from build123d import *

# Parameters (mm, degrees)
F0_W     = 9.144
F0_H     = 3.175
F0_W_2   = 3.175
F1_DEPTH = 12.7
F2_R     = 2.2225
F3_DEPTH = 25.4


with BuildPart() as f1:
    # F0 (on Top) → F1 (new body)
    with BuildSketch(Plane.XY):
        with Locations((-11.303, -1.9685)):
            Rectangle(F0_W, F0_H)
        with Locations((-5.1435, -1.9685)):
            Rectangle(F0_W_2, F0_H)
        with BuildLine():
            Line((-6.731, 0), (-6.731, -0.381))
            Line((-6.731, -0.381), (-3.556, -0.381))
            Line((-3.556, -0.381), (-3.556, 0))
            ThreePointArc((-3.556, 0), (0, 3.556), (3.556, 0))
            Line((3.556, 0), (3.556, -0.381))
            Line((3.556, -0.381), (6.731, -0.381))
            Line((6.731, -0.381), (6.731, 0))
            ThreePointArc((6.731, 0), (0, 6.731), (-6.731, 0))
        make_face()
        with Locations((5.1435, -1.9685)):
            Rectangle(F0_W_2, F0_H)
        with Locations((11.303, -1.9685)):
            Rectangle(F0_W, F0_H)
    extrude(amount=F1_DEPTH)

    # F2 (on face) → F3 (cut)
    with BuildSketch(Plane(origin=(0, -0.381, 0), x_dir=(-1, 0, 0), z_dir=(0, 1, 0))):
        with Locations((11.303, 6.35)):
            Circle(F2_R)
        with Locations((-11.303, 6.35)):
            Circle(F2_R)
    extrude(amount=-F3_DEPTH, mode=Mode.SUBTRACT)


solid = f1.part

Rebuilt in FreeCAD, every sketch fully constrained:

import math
import FreeCAD as App
import Part
import Sketcher
Q = App.Units.Quantity

doc = App.newDocument("Part")
body = doc.addObject("PartDesign::Body", "Body")

# Sketch on XY plane
sketch1 = body.newObject("Sketcher::SketchObject", "Sketch")
sketch1.AttachmentSupport = (doc.getObject("XY_Plane"), [""])
sketch1.MapMode = "FlatFace"
sketch1.addGeometry(Part.LineSegment(App.Vector(-15.88, -0.38, 0), App.Vector(-15.88, -3.56, 0)), False)
sketch1.addGeometry(Part.LineSegment(App.Vector(-15.88, -3.56, 0), App.Vector(-3.56, -3.56, 0)), False)
sketch1.addGeometry(Part.LineSegment(App.Vector(-3.56, -3.56, 0), App.Vector(-3.56, 0, 0)), False)
sketch1.addGeometry(Part.ArcOfCircle(Part.Circle(App.Vector(0, 0, 0), App.Vector(0, 0, 1), 3.56), math.radians(0), math.radians(180)), False)
sketch1.addGeometry(Part.LineSegment(App.Vector(3.56, 0, 0), App.Vector(3.56, -3.56, 0)), False)
sketch1.addGeometry(Part.LineSegment(App.Vector(3.56, -3.56, 0), App.Vector(15.88, -3.56, 0)), False)
sketch1.addGeometry(Part.LineSegment(App.Vector(15.88, -3.56, 0), App.Vector(15.88, -0.38, 0)), False)
sketch1.addGeometry(Part.LineSegment(App.Vector(15.88, -0.38, 0), App.Vector(6.73, -0.38, 0)), False)
sketch1.addGeometry(Part.LineSegment(App.Vector(6.73, -0.38, 0), App.Vector(6.73, 0, 0)), False)
sketch1.addGeometry(Part.ArcOfCircle(Part.Circle(App.Vector(0, 0, 0), App.Vector(0, 0, 1), 6.73), math.radians(0), math.radians(180)), False)
sketch1.addGeometry(Part.LineSegment(App.Vector(-6.73, 0, 0), App.Vector(-6.73, -0.38, 0)), False)
sketch1.addGeometry(Part.LineSegment(App.Vector(-6.73, -0.38, 0), App.Vector(-15.88, -0.38, 0)), False)
sketch1.addConstraint(Sketcher.Constraint("Coincident", 0, 2, 1, 1))
sketch1.addConstraint(Sketcher.Constraint("Coincident", 1, 2, 2, 1))
sketch1.addConstraint(Sketcher.Constraint("Tangent", 2, 2, 3, 2))
sketch1.addConstraint(Sketcher.Constraint("Tangent", 3, 1, 4, 1))
sketch1.addConstraint(Sketcher.Constraint("Coincident", 4, 2, 5, 1))
sketch1.addConstraint(Sketcher.Constraint("Coincident", 5, 2, 6, 1))
sketch1.addConstraint(Sketcher.Constraint("Coincident", 6, 2, 7, 1))
sketch1.addConstraint(Sketcher.Constraint("Coincident", 7, 2, 8, 1))
sketch1.addConstraint(Sketcher.Constraint("Tangent", 8, 2, 9, 1))
sketch1.addConstraint(Sketcher.Constraint("Tangent", 9, 2, 10, 1))
sketch1.addConstraint(Sketcher.Constraint("Coincident", 10, 2, 11, 1))
sketch1.addConstraint(Sketcher.Constraint("Coincident", 11, 2, 0, 1))
sketch1.addConstraint(Sketcher.Constraint("Vertical", 0))
sketch1.addConstraint(Sketcher.Constraint("Horizontal", 1))
sketch1.addConstraint(Sketcher.Constraint("Vertical", 2))
sketch1.addConstraint(Sketcher.Constraint("Vertical", 4))
sketch1.addConstraint(Sketcher.Constraint("Horizontal", 5))
sketch1.addConstraint(Sketcher.Constraint("Vertical", 6))
sketch1.addConstraint(Sketcher.Constraint("Horizontal", 7))
sketch1.addConstraint(Sketcher.Constraint("Vertical", 8))
sketch1.addConstraint(Sketcher.Constraint("Vertical", 10))
sketch1.addConstraint(Sketcher.Constraint("Horizontal", 11))
sketch1.addConstraint(Sketcher.Constraint("Coincident", 3, 3, -1, 1))
sketch1.addConstraint(Sketcher.Constraint("Coincident", 9, 3, -1, 1))
sketch1.addConstraint(Sketcher.Constraint("Symmetric", 0, 2, 5, 2, -2))
sketch1.addConstraint(Sketcher.Constraint("Horizontal", 7, 2, 10, 2))
sketch1.addConstraint(Sketcher.Constraint("Radius", 3, Q("0.14 in")))
sketch1.addConstraint(Sketcher.Constraint("Radius", 9, Q("0.265 in")))
sketch1.addConstraint(Sketcher.Constraint("DistanceX", 7, 2, 7, 1, Q("0.36 in")))
sketch1.addConstraint(Sketcher.Constraint("DistanceY", 2, 1, 2, 2, Q("0.14 in")))
sketch1.addConstraint(Sketcher.Constraint("DistanceY", 0, 2, 0, 1, Q("0.125 in")))
pad1 = body.newObject("PartDesign::Pad", "Pad")
pad1.Profile = sketch1
pad1.Length = Q("0.5 in")

# Sketch on XZ plane
sketch2 = body.newObject("Sketcher::SketchObject", "Sketch001")
sketch2.AttachmentSupport = (doc.getObject("XZ_Plane"), [""])
sketch2.MapMode = "FlatFace"
sketch2.AttachmentOffset = App.Placement(App.Vector(0, 0, 0.015 * 25.4), App.Rotation())
sketch2.addGeometry(Part.Circle(App.Vector(-11.3, 6.3, 0), App.Vector(0, 0, 1), 2.2), False)
sketch2.addGeometry(Part.Circle(App.Vector(11.3, 6.3, 0), App.Vector(0, 0, 1), 2.2), False)
sketch2.addConstraint(Sketcher.Constraint("Equal", 0, 1))
sketch2.addConstraint(Sketcher.Constraint("Symmetric", 0, 3, 1, 3, -2))
sketch2.addConstraint(Sketcher.Constraint("Diameter", 0, Q("0.175 in")))
sketch2.addConstraint(Sketcher.Constraint("DistanceY", -1, 1, 0, 3, Q("0.25 in")))
sketch2.addConstraint(Sketcher.Constraint("DistanceX", 0, 3, 1, 3, Q("0.89 in")))
pocket1 = body.newObject("PartDesign::Pocket", "Pocket")
pocket1.Profile = sketch2
pocket1.Length = Q("1 in")
pocket1.Reversed = True

doc.recompute()
